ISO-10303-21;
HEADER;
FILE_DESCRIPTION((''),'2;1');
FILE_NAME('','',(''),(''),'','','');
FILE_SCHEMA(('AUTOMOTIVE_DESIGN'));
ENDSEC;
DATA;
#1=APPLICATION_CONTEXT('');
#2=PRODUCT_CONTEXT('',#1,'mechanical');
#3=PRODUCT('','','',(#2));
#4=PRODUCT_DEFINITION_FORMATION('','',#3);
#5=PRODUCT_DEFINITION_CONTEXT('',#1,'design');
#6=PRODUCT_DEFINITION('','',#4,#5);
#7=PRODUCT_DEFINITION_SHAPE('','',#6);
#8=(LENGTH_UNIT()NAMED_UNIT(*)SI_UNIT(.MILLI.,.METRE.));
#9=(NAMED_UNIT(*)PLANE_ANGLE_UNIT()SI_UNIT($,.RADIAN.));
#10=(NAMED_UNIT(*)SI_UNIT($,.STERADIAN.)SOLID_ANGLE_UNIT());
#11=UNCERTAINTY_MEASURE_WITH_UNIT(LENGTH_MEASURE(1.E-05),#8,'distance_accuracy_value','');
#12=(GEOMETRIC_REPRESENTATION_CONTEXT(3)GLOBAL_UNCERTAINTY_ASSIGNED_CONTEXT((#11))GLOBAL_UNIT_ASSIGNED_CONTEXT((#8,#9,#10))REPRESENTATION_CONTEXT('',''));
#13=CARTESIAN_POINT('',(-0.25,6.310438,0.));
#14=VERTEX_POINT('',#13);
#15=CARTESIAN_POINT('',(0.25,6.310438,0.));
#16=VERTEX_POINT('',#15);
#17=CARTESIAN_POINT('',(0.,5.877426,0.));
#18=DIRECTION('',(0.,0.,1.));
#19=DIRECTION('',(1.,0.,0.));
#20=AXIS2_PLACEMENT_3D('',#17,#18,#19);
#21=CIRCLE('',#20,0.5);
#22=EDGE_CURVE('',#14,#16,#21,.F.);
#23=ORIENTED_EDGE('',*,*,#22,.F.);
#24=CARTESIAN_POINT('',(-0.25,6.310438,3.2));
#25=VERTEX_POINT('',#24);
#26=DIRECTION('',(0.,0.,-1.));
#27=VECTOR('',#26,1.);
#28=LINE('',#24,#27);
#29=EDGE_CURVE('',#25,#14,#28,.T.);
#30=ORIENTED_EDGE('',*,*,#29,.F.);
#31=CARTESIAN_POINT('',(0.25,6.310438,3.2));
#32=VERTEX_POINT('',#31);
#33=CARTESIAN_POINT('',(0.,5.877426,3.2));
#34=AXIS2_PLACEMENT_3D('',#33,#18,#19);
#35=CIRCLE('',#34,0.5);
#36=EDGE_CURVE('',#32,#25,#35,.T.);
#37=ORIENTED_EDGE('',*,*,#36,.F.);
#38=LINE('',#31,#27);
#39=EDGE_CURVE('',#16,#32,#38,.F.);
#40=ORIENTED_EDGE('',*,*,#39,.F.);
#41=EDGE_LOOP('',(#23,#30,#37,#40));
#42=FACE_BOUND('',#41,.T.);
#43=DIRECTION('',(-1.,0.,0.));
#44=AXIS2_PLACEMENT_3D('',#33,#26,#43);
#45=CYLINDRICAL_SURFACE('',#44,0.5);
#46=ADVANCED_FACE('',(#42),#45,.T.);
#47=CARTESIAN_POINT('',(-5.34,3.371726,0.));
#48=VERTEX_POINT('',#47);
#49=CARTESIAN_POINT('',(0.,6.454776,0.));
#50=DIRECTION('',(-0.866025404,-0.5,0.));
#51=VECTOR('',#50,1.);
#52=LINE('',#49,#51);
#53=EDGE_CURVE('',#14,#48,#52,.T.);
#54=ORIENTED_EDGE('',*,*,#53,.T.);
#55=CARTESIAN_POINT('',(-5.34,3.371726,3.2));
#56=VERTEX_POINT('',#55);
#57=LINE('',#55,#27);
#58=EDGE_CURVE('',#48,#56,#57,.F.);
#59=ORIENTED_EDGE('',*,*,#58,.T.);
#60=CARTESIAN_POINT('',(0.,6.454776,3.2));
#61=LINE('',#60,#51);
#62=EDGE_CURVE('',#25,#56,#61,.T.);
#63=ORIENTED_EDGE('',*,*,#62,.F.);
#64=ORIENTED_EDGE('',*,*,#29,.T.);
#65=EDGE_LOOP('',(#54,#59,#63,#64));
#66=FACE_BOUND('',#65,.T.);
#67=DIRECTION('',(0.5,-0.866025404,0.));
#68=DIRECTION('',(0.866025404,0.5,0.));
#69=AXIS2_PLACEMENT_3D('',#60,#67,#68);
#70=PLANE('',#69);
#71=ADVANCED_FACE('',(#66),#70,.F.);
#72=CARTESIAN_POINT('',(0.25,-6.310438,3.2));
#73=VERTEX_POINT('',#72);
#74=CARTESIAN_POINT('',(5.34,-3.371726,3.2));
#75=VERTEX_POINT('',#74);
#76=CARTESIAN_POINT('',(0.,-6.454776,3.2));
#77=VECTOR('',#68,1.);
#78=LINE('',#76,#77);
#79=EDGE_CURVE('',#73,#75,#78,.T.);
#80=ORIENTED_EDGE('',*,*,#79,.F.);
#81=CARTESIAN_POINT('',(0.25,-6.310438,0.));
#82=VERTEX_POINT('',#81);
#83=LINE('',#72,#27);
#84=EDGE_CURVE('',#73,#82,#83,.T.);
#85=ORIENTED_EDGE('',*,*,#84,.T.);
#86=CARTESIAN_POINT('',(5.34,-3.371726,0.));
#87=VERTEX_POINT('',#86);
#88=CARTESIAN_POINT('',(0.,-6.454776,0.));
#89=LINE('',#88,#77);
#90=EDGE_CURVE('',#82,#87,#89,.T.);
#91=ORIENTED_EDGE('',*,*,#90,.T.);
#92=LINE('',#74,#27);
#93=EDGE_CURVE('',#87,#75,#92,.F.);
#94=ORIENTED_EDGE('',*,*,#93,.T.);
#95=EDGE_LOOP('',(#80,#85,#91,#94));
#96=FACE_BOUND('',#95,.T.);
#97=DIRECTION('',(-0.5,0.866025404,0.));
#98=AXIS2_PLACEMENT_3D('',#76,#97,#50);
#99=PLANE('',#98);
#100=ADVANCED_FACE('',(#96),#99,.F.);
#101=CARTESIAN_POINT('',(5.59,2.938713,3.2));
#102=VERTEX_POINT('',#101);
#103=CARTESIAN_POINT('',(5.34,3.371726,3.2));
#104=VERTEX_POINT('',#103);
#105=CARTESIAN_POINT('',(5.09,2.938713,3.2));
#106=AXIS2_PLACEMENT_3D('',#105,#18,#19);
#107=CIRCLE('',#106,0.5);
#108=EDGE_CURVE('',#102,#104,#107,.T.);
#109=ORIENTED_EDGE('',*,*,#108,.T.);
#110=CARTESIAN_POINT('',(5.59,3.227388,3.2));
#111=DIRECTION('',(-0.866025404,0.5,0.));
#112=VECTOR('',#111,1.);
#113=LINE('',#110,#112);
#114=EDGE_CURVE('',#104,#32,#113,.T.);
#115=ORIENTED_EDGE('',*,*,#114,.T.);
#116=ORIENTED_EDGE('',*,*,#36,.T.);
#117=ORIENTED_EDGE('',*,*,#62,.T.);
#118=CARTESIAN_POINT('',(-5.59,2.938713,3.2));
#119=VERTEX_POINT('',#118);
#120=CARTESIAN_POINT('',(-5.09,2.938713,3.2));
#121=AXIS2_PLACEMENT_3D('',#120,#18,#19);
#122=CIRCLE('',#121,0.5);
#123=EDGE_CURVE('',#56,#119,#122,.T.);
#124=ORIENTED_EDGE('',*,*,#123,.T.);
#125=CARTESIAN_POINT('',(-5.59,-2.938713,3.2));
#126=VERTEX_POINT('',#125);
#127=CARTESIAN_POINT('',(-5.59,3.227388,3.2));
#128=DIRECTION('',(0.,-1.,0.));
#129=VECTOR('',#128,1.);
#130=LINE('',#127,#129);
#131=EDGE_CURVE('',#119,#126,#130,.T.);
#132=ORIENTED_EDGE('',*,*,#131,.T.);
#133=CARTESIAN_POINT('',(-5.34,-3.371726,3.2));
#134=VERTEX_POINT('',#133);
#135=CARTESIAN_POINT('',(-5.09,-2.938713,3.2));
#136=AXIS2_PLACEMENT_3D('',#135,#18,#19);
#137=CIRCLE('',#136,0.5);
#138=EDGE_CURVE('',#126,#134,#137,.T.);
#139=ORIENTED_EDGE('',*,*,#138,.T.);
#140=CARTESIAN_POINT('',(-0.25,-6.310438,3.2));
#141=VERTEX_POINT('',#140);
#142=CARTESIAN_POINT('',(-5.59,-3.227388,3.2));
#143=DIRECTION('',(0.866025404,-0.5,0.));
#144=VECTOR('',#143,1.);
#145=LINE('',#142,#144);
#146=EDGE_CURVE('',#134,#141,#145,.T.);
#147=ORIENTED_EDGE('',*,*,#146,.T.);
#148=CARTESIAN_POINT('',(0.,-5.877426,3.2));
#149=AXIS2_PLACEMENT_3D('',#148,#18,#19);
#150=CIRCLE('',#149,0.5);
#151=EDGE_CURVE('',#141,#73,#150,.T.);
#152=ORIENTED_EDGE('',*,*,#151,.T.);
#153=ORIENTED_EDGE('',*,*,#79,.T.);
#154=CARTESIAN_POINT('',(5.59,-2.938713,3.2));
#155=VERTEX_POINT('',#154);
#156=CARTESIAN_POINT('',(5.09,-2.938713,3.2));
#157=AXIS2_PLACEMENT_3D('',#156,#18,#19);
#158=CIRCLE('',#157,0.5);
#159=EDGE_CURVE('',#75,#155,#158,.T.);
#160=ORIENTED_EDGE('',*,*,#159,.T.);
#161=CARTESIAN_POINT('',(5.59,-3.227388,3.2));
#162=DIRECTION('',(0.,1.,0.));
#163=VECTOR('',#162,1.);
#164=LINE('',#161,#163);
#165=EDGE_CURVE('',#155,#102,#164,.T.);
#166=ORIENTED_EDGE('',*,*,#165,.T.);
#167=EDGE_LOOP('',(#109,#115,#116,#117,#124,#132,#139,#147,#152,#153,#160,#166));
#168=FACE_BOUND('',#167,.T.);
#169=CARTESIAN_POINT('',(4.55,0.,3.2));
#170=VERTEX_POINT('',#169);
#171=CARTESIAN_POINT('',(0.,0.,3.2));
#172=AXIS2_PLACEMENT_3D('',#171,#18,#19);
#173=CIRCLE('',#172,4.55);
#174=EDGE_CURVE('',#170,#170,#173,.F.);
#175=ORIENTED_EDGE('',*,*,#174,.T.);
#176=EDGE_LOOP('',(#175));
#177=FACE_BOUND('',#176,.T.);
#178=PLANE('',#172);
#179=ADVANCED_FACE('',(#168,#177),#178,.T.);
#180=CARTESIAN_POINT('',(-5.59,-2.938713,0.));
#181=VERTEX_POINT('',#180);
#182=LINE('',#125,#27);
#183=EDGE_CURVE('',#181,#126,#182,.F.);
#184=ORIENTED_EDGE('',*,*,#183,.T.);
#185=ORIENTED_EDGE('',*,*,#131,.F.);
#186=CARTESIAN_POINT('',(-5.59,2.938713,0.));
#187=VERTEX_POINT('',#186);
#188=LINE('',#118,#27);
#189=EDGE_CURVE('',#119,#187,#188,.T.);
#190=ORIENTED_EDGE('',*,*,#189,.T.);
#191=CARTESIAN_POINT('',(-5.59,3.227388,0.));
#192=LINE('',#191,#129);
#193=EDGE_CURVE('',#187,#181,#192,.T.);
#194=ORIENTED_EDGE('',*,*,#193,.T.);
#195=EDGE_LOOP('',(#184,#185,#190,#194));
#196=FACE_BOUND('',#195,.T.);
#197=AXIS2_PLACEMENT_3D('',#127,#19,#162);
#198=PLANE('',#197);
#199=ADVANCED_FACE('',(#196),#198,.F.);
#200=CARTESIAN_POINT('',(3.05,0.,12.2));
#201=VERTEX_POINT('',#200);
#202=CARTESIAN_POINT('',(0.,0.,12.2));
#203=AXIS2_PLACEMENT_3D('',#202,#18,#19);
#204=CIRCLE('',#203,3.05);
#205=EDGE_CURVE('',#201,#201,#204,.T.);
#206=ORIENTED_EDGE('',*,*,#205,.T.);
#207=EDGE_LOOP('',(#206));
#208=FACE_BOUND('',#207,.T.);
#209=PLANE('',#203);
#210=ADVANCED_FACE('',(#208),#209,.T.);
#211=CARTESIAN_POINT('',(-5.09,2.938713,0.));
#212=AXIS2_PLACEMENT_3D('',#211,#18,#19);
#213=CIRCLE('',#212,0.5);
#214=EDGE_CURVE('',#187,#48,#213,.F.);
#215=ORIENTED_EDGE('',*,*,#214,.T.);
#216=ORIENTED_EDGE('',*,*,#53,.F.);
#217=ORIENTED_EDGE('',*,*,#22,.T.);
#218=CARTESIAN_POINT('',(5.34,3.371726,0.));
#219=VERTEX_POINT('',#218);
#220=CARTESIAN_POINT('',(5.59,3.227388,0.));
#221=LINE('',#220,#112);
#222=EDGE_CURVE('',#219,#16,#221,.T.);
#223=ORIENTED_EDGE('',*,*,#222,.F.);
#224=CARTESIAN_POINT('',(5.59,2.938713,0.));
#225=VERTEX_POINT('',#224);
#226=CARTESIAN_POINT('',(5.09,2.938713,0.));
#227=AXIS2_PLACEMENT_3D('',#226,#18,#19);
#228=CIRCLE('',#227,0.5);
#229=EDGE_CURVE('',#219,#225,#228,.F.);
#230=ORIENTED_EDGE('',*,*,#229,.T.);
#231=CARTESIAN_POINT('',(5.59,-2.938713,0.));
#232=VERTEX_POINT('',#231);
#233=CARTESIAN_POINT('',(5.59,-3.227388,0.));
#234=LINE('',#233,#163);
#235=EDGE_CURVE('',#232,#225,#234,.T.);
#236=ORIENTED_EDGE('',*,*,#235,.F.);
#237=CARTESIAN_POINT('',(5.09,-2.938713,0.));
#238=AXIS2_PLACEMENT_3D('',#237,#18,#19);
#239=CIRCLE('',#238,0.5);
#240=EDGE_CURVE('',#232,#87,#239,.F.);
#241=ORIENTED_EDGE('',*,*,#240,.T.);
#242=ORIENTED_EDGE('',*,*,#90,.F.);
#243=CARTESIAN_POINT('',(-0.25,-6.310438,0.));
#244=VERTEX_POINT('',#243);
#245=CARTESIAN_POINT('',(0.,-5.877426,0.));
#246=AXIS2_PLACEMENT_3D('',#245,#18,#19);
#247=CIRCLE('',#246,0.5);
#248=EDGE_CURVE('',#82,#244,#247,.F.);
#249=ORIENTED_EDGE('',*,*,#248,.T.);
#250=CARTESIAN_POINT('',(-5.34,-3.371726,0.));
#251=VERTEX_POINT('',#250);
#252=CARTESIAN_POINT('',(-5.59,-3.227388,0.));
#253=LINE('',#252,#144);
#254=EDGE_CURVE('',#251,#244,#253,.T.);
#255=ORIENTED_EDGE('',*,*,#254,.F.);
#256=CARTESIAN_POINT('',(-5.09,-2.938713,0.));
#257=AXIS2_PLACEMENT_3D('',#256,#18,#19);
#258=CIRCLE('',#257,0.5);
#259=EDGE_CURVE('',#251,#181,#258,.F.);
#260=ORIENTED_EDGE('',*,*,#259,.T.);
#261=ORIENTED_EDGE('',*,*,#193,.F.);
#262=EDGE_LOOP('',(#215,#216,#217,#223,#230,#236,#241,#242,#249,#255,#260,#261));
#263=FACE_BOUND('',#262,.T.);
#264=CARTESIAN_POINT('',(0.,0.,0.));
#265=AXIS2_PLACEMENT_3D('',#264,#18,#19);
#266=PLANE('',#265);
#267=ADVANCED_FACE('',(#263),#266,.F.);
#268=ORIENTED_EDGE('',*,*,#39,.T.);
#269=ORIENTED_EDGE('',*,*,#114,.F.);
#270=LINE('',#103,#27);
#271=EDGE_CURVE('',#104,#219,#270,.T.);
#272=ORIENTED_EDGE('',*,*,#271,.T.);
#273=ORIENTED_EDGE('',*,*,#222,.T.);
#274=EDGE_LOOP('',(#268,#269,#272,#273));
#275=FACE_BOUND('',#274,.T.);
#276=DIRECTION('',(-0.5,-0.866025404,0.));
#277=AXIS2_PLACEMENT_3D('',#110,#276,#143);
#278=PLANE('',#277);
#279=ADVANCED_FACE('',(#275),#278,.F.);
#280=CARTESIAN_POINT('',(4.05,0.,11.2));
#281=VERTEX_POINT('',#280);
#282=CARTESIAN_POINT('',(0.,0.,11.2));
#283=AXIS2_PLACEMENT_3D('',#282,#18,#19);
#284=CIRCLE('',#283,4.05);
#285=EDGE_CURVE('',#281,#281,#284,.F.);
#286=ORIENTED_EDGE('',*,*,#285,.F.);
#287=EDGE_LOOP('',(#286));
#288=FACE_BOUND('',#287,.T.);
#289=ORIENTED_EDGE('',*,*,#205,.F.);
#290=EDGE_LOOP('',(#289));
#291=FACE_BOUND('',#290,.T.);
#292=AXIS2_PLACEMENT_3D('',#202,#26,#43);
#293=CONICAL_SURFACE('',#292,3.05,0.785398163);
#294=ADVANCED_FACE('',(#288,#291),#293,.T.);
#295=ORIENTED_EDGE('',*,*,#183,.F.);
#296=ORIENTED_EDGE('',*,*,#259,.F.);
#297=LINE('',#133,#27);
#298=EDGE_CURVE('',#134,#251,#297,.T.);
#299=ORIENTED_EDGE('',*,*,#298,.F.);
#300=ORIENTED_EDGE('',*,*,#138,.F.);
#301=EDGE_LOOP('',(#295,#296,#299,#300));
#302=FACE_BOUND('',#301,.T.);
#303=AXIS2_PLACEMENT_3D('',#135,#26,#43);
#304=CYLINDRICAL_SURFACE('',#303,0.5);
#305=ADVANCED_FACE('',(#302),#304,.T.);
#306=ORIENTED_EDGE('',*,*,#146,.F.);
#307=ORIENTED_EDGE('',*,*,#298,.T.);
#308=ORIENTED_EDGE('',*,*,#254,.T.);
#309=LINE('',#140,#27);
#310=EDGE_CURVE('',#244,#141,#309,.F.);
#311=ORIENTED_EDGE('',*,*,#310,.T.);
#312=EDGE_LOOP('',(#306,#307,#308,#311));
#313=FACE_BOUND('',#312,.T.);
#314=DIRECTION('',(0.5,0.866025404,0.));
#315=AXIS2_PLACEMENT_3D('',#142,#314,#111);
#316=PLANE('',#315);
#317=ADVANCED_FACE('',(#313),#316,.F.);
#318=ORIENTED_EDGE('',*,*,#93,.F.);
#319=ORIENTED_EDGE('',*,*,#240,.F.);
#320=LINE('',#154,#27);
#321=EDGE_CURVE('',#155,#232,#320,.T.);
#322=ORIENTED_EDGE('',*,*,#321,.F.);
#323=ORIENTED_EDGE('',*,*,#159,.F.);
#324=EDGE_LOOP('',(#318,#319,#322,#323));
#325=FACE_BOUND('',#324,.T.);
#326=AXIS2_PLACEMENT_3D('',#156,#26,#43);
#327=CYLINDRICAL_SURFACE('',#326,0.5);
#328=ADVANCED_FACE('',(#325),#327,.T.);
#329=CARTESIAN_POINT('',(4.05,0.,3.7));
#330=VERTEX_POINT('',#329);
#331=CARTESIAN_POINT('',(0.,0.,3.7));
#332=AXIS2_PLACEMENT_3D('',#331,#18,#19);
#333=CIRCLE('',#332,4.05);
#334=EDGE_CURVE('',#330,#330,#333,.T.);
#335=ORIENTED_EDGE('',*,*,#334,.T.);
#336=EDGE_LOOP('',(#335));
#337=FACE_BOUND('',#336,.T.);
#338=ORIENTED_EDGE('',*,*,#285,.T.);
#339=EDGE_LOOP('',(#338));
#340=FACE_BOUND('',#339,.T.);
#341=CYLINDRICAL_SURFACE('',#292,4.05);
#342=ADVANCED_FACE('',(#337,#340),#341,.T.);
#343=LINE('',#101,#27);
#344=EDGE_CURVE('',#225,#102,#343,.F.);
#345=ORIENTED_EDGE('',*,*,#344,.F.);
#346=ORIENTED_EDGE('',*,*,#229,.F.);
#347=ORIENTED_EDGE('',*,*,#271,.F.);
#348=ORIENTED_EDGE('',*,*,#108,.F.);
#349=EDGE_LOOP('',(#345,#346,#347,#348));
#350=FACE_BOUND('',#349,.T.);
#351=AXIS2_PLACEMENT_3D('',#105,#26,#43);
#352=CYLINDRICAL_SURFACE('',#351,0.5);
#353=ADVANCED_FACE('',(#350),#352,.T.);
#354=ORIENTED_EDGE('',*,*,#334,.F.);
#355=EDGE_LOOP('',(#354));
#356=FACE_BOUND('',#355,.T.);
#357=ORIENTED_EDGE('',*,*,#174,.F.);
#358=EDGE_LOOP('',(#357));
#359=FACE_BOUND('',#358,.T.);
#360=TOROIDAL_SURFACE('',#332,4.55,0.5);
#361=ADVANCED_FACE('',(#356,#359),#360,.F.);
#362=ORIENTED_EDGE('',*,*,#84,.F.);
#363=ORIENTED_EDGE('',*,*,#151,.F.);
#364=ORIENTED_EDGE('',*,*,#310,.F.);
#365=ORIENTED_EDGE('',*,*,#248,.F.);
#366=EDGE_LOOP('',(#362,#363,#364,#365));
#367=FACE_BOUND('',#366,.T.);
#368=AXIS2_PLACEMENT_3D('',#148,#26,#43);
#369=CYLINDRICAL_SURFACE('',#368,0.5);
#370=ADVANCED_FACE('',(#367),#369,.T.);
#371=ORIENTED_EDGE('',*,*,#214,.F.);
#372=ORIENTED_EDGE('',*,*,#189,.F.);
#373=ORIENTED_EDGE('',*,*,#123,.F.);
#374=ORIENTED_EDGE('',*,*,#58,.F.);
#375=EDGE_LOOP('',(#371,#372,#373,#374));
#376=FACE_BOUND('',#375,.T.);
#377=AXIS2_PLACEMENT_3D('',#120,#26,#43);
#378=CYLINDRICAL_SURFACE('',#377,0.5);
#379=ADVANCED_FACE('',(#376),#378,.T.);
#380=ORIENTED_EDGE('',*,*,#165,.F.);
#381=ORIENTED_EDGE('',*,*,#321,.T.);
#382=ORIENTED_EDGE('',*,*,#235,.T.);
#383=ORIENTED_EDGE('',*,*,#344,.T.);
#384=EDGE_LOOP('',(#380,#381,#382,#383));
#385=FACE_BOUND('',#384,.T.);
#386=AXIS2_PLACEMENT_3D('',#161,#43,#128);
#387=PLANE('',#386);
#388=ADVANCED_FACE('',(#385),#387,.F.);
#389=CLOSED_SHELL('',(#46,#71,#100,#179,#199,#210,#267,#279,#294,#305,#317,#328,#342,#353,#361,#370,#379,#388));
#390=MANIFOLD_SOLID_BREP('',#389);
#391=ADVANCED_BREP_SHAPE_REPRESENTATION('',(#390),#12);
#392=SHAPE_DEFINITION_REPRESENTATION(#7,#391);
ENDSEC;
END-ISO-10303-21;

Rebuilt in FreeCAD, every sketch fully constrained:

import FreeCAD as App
import Part
import Sketcher

V = App.Vector
Q = App.Units.Quantity


def edges_at(feature, points):
    """Names of the edges that pass closest to the given points."""
    edges = feature.Shape.Edges
    near = lambda p: min(range(len(edges)), key=lambda i: edges[i].distToShape(Part.Vertex(*p))[0])
    return sorted({f"Edge{near(p) + 1}" for p in points})


def add_polygon(sketch, points):
    """Adds a closed chain of lines whose ends are joined by coincident constraints."""
    first, n = sketch.GeometryCount, len(points)
    for a, b in zip(points, points[1:] + points[:1]):
        sketch.addGeometry(Part.LineSegment(App.Vector(*a, 0), App.Vector(*b, 0)), False)
    for i in range(n):
        sketch.addConstraint(Sketcher.Constraint("Coincident", first + i, 2, first + (i + 1) % n, 1))

doc = App.newDocument("Part")
body = doc.addObject("PartDesign::Body", "Body")

# Sketch on XY plane
sketch1 = body.newObject("Sketcher::SketchObject", "Sketch")
sketch1.AttachmentSupport = (doc.getObject("XY_Plane"), [""])
sketch1.MapMode = "FlatFace"
add_polygon(sketch1, [(6, 3), (0, 6), (-6, 3), (-6, -3), (0, -6), (6, -3)])  # lines 0-5
sketch1.addConstraint([
    Sketcher.Constraint("Vertical", 2),
    Sketcher.Constraint("Vertical", 5),
    Sketcher.Constraint("Symmetric", 0, 2, 3, 2, -1, 1),
    Sketcher.Constraint("Symmetric", 1, 2, 4, 2, -1, 1),
    Sketcher.Constraint("PointOnObject", 0, 2, -2),
    Sketcher.Constraint("Parallel", 0, 3),
    Sketcher.Constraint("Horizontal", 2, 2, 4, 2),
    Sketcher.Constraint("Angle", 0, Q("150 deg")),
    Sketcher.Constraint("DistanceX", 1, 2, -1, 1, Q("5.59 mm")),
    Sketcher.Constraint("DistanceY", 2, 2, 2, 1, Q("6.454776 mm")),
])
pad1 = body.newObject("PartDesign::Pad", "Pad")
pad1.Profile = sketch1
pad1.Length = 3.2

# Sketch on XY plane
sketch2 = body.newObject("Sketcher::SketchObject", "Sketch001")
sketch2.AttachmentSupport = (doc.getObject("XY_Plane"), [""])
sketch2.MapMode = "FlatFace"
sketch2.AttachmentOffset = App.Placement(V(0, 0, 3.2), App.Rotation())
sketch2.addGeometry(Part.Circle(V(0, 0, 0), V(0, 0, 1), 4), False)
sketch2.addConstraint([
    Sketcher.Constraint("Coincident", 0, 3, -1, 1),
    Sketcher.Constraint("Diameter", 0, Q("8.1 mm")),
])
pad2 = body.newObject("PartDesign::Pad", "Pad001")
pad2.Profile = sketch2
pad2.Length = 9
doc.recompute()

fillet = body.newObject("PartDesign::Fillet", "Fillet")
fillet.Base = (pad2, edges_at(pad2, [
    (5.59, -3.227, 1.6),
    (0, -6.455, 1.6),
    (-5.59, -3.227, 1.6),
    (-5.59, 3.227, 1.6),
    (0, 6.455, 1.6),
    (5.59, 3.227, 1.6),
    (-4.05, 0, 3.2),
]))
fillet.Radius = 0.5
doc.recompute()

chamfer = body.newObject("PartDesign::Chamfer", "Chamfer")
chamfer.Base = (fillet, edges_at(fillet, [(-4.05, 0, 12.2)]))
chamfer.Size = 1

doc.recompute()
